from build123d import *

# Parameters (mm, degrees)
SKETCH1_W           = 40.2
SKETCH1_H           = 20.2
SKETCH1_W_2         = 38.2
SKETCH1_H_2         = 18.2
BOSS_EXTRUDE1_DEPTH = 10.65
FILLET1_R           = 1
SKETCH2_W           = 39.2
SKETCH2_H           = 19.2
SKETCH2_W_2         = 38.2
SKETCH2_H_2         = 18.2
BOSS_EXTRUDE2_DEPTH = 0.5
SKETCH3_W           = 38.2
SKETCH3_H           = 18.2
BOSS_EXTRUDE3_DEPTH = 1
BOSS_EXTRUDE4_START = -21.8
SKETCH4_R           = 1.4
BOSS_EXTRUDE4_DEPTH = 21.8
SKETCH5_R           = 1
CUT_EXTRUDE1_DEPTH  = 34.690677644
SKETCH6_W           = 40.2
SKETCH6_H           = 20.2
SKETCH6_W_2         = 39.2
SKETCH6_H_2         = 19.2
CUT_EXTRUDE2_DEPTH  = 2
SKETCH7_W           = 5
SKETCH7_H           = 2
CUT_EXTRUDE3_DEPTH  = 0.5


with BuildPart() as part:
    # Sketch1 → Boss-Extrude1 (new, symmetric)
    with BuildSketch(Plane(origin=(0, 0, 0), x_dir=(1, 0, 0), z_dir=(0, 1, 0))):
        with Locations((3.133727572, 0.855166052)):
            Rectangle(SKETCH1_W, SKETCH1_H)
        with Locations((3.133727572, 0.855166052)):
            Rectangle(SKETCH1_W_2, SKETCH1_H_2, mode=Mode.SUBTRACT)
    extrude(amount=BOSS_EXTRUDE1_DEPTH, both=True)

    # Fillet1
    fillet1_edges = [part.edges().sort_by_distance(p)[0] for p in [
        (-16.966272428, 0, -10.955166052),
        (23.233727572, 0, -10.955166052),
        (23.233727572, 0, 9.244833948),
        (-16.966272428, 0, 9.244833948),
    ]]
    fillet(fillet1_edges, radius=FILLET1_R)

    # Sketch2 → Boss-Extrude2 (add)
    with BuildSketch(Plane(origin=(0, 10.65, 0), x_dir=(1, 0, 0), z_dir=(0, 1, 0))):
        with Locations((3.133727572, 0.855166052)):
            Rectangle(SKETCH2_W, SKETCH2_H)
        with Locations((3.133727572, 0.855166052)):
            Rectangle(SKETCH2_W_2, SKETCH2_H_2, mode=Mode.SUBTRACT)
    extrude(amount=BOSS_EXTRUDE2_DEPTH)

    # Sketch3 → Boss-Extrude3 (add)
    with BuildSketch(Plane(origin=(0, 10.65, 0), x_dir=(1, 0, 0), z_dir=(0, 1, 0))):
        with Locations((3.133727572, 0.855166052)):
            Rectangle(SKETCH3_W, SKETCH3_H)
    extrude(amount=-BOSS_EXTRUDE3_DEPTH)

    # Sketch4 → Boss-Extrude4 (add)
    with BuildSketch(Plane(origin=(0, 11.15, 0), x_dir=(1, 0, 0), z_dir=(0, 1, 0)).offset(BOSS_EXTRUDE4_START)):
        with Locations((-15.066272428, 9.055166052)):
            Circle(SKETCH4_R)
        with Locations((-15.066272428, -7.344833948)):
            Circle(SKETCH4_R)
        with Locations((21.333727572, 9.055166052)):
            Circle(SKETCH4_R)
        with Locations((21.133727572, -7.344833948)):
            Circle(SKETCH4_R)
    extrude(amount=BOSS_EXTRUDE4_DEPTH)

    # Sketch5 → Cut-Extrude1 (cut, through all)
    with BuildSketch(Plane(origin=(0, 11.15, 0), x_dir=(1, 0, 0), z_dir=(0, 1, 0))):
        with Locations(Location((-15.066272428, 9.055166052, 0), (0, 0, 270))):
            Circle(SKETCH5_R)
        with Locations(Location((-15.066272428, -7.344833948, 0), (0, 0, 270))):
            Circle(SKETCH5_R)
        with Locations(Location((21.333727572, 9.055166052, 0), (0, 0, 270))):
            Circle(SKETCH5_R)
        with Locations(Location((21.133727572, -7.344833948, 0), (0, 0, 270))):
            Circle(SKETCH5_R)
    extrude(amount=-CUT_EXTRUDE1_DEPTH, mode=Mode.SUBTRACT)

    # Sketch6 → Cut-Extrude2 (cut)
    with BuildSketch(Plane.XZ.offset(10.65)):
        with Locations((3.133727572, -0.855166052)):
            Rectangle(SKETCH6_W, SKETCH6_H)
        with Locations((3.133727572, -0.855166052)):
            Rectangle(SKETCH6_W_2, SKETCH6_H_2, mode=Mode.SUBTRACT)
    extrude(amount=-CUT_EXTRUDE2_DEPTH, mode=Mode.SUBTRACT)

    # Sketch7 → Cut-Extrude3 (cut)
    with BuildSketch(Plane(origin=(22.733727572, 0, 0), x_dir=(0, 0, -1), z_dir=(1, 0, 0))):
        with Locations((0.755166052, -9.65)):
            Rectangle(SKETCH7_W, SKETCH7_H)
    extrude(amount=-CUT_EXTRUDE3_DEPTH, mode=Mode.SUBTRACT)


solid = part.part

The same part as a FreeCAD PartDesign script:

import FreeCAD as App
import Part
import Sketcher
Q = App.Units.Quantity


def edges_at(feature, points):
    """Names of the edges that pass closest to the given points."""
    edges = feature.Shape.Edges
    near = lambda p: min(range(len(edges)), key=lambda i: edges[i].distToShape(Part.Vertex(*p))[0])
    return sorted({f"Edge{near(p) + 1}" for p in points})

doc = App.newDocument("Part")
params = doc.addObject("Spreadsheet::Sheet", "Params")
for row, (alias, value) in enumerate([
    ("sketch1_width", "40.2 mm"),
    ("sketch1_width2", "38.2 mm"),
    ("sketch1_height", "20.2 mm"),
    ("sketch1_height2", "18.2 mm"),
    ("pad1_length", "21.3 mm"),
    ("fillet_radius", "1 mm"),
    ("sketch2_width", "39.2 mm"),
    ("sketch2_width2", "38.2 mm"),
    ("sketch2_height", "19.2 mm"),
    ("sketch2_height2", "18.2 mm"),
    ("pad2_length", "0.5 mm"),
    ("sketch3_width", "38.2 mm"),
    ("sketch3_height", "18.2 mm"),
    ("pad3_length", "1 mm"),
    ("sketch4_diameter", "2.8 mm"),
    ("pad4_length", "21.8 mm"),
    ("sketch5_diameter", "2 mm"),
    ("sketch6_width", "40.2 mm"),
    ("sketch6_width2", "39.2 mm"),
    ("sketch6_height", "20.2 mm"),
    ("sketch6_height2", "19.2 mm"),
    ("pocket2_length", "2 mm"),
    ("sketch7_width", "2 mm"),
    ("sketch7_height", "5 mm"),
    ("pocket3_length", "0.5 mm"),
], start=1):
    params.set(f"A{row}", alias)
    params.set(f"B{row}", "=" + value)
    params.setAlias(f"B{row}", alias)

body = doc.addObject("PartDesign::Body", "Body")

# Sketch on XZ plane
sketch1 = body.newObject("Sketcher::SketchObject", "Sketch")
sketch1.AttachmentSupport = (doc.getObject("XZ_Plane"), [""])
sketch1.MapMode = "FlatFace"
sketch1.addGeometry([
    Part.LineSegment(App.Vector(-17, -11, 0), App.Vector(-17, 9, 0)),  # 0
    Part.LineSegment(App.Vector(-17, 9, 0), App.Vector(23, 9, 0)),  # 1
    Part.LineSegment(App.Vector(23, 9, 0), App.Vector(23, -11, 0)),  # 2
    Part.LineSegment(App.Vector(23, -11, 0), App.Vector(-17, -11, 0)),  # 3
    Part.LineSegment(App.Vector(22, 8, 0), App.Vector(-16, 8, 0)),  # 4
    Part.LineSegment(App.Vector(-16, 8, 0), App.Vector(-16, -10, 0)),  # 5
    Part.LineSegment(App.Vector(-16, -10, 0), App.Vector(22, -10, 0)),  # 6
    Part.LineSegment(App.Vector(22, -10, 0), App.Vector(22, 8, 0)),  # 7
], False)
sketch1.addConstraint([
    Sketcher.Constraint("Coincident", 0, 2, 1, 1),
    Sketcher.Constraint("Coincident", 1, 2, 2, 1),
    Sketcher.Constraint("Coincident", 2, 2, 3, 1),
    Sketcher.Constraint("Coincident", 3, 2, 0, 1),
    Sketcher.Constraint("Coincident", 4, 2, 5, 1),
    Sketcher.Constraint("Coincident", 5, 2, 6, 1),
    Sketcher.Constraint("Coincident", 6, 2, 7, 1),
    Sketcher.Constraint("Coincident", 7, 2, 4, 1),
    Sketcher.Constraint("Vertical", 0),
    Sketcher.Constraint("Horizontal", 1),
    Sketcher.Constraint("Vertical", 2),
    Sketcher.Constraint("Horizontal", 3),
    Sketcher.Constraint("Horizontal", 4),
    Sketcher.Constraint("Vertical", 5),
    Sketcher.Constraint("Horizontal", 6),
    Sketcher.Constraint("Vertical", 7),
    Sketcher.Constraint("DistanceX", 1, 1, 1, 2, Q("40.2 mm")),
    Sketcher.Constraint("DistanceX", 4, 2, 4, 1, Q("38.2 mm")),
    Sketcher.Constraint("DistanceY", 0, 1, 0, 2, Q("20.2 mm")),
    Sketcher.Constraint("DistanceY", 5, 2, 5, 1, Q("18.2 mm")),
    Sketcher.Constraint("DistanceX", 0, 2, 4, 2, Q("1 mm")),
    Sketcher.Constraint("DistanceY", 4, 2, 0, 2, Q("1 mm")),
    Sketcher.Constraint("DistanceX", 0, 2, -1, 1, Q("16.966272 mm")),
    Sketcher.Constraint("DistanceY", -1, 1, 0, 2, Q("9.244834 mm")),
])
sketch1.setExpression("Constraints[16]", "Params.sketch1_width")
sketch1.setExpression("Constraints[17]", "Params.sketch1_width2")
sketch1.setExpression("Constraints[18]", "Params.sketch1_height")
sketch1.setExpression("Constraints[19]", "Params.sketch1_height2")
pad1 = body.newObject("PartDesign::Pad", "Pad")
pad1.Profile = sketch1
pad1.setExpression("Length", "Params.pad1_length")
pad1.Midplane = True
doc.recompute()

fillet = body.newObject("PartDesign::Fillet", "Fillet")
fillet.Base = (pad1, edges_at(pad1, [
    (-16.966, 0, -10.955),
    (23.234, 0, -10.955),
    (23.234, 0, 9.245),
    (-16.966, 0, 9.245),
]))
fillet.setExpression("Radius", "Params.fillet_radius")

# Sketch on XZ plane
sketch2 = body.newObject("Sketcher::SketchObject", "Sketch001")
sketch2.AttachmentSupport = (doc.getObject("XZ_Plane"), [""])
sketch2.MapMode = "FlatFace"
sketch2.AttachmentOffset = App.Placement(App.Vector(0, 0, -10.65), App.Rotation())
sketch2.addGeometry([
    Part.LineSegment(App.Vector(-16, -10, 0), App.Vector(-16, 9, 0)),  # 0
    Part.LineSegment(App.Vector(-16, 9, 0), App.Vector(23, 9, 0)),  # 1
    Part.LineSegment(App.Vector(23, 9, 0), App.Vector(23, -10, 0)),  # 2
    Part.LineSegment(App.Vector(23, -10, 0), App.Vector(-16, -10, 0)),  # 3
    Part.LineSegment(App.Vector(22, 8, 0), App.Vector(-16, 8, 0)),  # 4
    Part.LineSegment(App.Vector(-16, 8, 0), App.Vector(-16, -10, 0)),  # 5
    Part.LineSegment(App.Vector(-16, -10, 0), App.Vector(22, -10, 0)),  # 6
    Part.LineSegment(App.Vector(22, -10, 0), App.Vector(22, 8, 0)),  # 7
], False)
sketch2.addConstraint([
    Sketcher.Constraint("Coincident", 0, 2, 1, 1),
    Sketcher.Constraint("Coincident", 1, 2, 2, 1),
    Sketcher.Constraint("Coincident", 2, 2, 3, 1),
    Sketcher.Constraint("Coincident", 3, 2, 0, 1),
    Sketcher.Constraint("Coincident", 4, 2, 5, 1),
    Sketcher.Constraint("Coincident", 5, 2, 6, 1),
    Sketcher.Constraint("Coincident", 6, 2, 7, 1),
    Sketcher.Constraint("Coincident", 7, 2, 4, 1),
    Sketcher.Constraint("Vertical", 0),
    Sketcher.Constraint("Horizontal", 1),
    Sketcher.Constraint("Vertical", 2),
    Sketcher.Constraint("Horizontal", 3),
    Sketcher.Constraint("Horizontal", 4),
    Sketcher.Constraint("Vertical", 5),
    Sketcher.Constraint("Horizontal", 6),
    Sketcher.Constraint("Vertical", 7),
    Sketcher.Constraint("DistanceX", 1, 1, 1, 2, Q("39.2 mm")),
    Sketcher.Constraint("DistanceX", 4, 2, 4, 1, Q("38.2 mm")),
    Sketcher.Constraint("DistanceY", 0, 1, 0, 2, Q("19.2 mm")),
    Sketcher.Constraint("DistanceY", 5, 2, 5, 1, Q("18.2 mm")),
    Sketcher.Constraint("DistanceX", 0, 2, 4, 2, Q("0.5 mm")),
    Sketcher.Constraint("DistanceY", 4, 2, 0, 2, Q("0.5 mm")),
    Sketcher.Constraint("DistanceX", 0, 2, -1, 1, Q("16.466272 mm")),
    Sketcher.Constraint("DistanceY", -1, 1, 0, 2, Q("8.744834 mm")),
])
sketch2.setExpression("Constraints[16]", "Params.sketch2_width")
sketch2.setExpression("Constraints[17]", "Params.sketch2_width2")
sketch2.setExpression("Constraints[18]", "Params.sketch2_height")
sketch2.setExpression("Constraints[19]", "Params.sketch2_height2")
pad2 = body.newObject("PartDesign::Pad", "Pad001")
pad2.Profile = sketch2
pad2.setExpression("Length", "Params.pad2_length")
pad2.Reversed = True

# Sketch on XZ plane
sketch3 = body.newObject("Sketcher::SketchObject", "Sketch002")
sketch3.AttachmentSupport = (doc.getObject("XZ_Plane"), [""])
sketch3.MapMode = "FlatFace"
sketch3.AttachmentOffset = App.Placement(App.Vector(0, 0, -10.65), App.Rotation())
sketch3.addGeometry([
    Part.LineSegment(App.Vector(-16, -10, 0), App.Vector(-16, 8, 0)),
    Part.LineSegment(App.Vector(-16, 8, 0), App.Vector(22, 8, 0)),
    Part.LineSegment(App.Vector(22, 8, 0), App.Vector(22, -10, 0)),
    Part.LineSegment(App.Vector(22, -10, 0), App.Vector(-16, -10, 0)),
], False)
sketch3.addConstraint([
    Sketcher.Constraint("Coincident", 0, 2, 1, 1),
    Sketcher.Constraint("Coincident", 1, 2, 2, 1),
    Sketcher.Constraint("Coincident", 2, 2, 3, 1),
    Sketcher.Constraint("Coincident", 3, 2, 0, 1),
    Sketcher.Constraint("Vertical", 0),
    Sketcher.Constraint("Horizontal", 1),
    Sketcher.Constraint("Vertical", 2),
    Sketcher.Constraint("Horizontal", 3),
    Sketcher.Constraint("DistanceX", 1, 1, 1, 2, Q("38.2 mm")),
    Sketcher.Constraint("DistanceY", 0, 1, 0, 2, Q("18.2 mm")),
    Sketcher.Constraint("DistanceX", 0, 2, -1, 1, Q("15.966272 mm")),
    Sketcher.Constraint("DistanceY", -1, 1, 0, 2, Q("8.244834 mm")),
])
sketch3.setExpression("Constraints[8]", "Params.sketch3_width")
sketch3.setExpression("Constraints[9]", "Params.sketch3_height")
pad3 = body.newObject("PartDesign::Pad", "Pad002")
pad3.Profile = sketch3
pad3.setExpression("Length", "Params.pad3_length")

# Sketch on XZ plane
sketch4 = body.newObject("Sketcher::SketchObject", "Sketch003")
sketch4.AttachmentSupport = (doc.getObject("XZ_Plane"), [""])
sketch4.MapMode = "FlatFace"
sketch4.AttachmentOffset = App.Placement(App.Vector(0, 0, 10.65), App.Rotation())
sketch4.addGeometry([
    Part.Circle(App.Vector(-15.1, -9.1, 0), App.Vector(0, 0, 1), 1.4),
    Part.Circle(App.Vector(-15.1, 7.3, 0), App.Vector(0, 0, 1), 1.4),
    Part.Circle(App.Vector(21.3, -9.1, 0), App.Vector(0, 0, 1), 1.4),
    Part.Circle(App.Vector(21.1, 7.3, 0), App.Vector(0, 0, 1), 1.4),
], False)
sketch4.addConstraint([
    Sketcher.Constraint("Equal", 0, 1),
    Sketcher.Constraint("Equal", 1, 2),
    Sketcher.Constraint("Equal", 2, 3),
    Sketcher.Constraint("Horizontal", 0, 3, 2, 3),
    Sketcher.Constraint("Horizontal", 1, 3, 3, 3),
    Sketcher.Constraint("Vertical", 0, 3, 1, 3),
    Sketcher.Constraint("Diameter", 0, Q("2.8 mm")),
    Sketcher.Constraint("DistanceY", 0, 3, 1, 3, Q("16.4 mm")),
    Sketcher.Constraint("DistanceX", 0, 3, 2, 3, Q("36.4 mm")),
    Sketcher.Constraint("DistanceX", 3, 3, 2, 3, Q("0.2 mm")),
    Sketcher.Constraint("DistanceX", 0, 3, -1, 1, Q("15.066272 mm")),
    Sketcher.Constraint("DistanceY", 0, 3, -1, 1, Q("9.055166 mm")),
])
sketch4.setExpression("Constraints[6]", "Params.sketch4_diameter")
pad4 = body.newObject("PartDesign::Pad", "Pad003")
pad4.Profile = sketch4
pad4.setExpression("Length", "Params.pad4_length")
pad4.Reversed = True

# Sketch on XZ plane
sketch5 = body.newObject("Sketcher::SketchObject", "Sketch004")
sketch5.AttachmentSupport = (doc.getObject("XZ_Plane"), [""])
sketch5.MapMode = "FlatFace"
sketch5.AttachmentOffset = App.Placement(App.Vector(0, 0, -11.15), App.Rotation())
sketch5.addGeometry([
    Part.Circle(App.Vector(-15.1, -9.1, 0), App.Vector(0, 0, 1), 1),
    Part.Circle(App.Vector(-15.1, 7.3, 0), App.Vector(0, 0, 1), 1),
    Part.Circle(App.Vector(21.3, -9.1, 0), App.Vector(0, 0, 1), 1),
    Part.Circle(App.Vector(21.1, 7.3, 0), App.Vector(0, 0, 1), 1),
], False)
sketch5.addConstraint([
    Sketcher.Constraint("Equal", 0, 1),
    Sketcher.Constraint("Equal", 1, 2),
    Sketcher.Constraint("Equal", 2, 3),
    Sketcher.Constraint("Horizontal", 0, 3, 2, 3),
    Sketcher.Constraint("Horizontal", 1, 3, 3, 3),
    Sketcher.Constraint("Vertical", 0, 3, 1, 3),
    Sketcher.Constraint("Diameter", 0, Q("2 mm")),
    Sketcher.Constraint("DistanceY", 0, 3, 1, 3, Q("16.4 mm")),
    Sketcher.Constraint("DistanceX", 0, 3, 2, 3, Q("36.4 mm")),
    Sketcher.Constraint("DistanceX", 3, 3, 2, 3, Q("0.2 mm")),
    Sketcher.Constraint("DistanceX", 0, 3, -1, 1, Q("15.066272 mm")),
    Sketcher.Constraint("DistanceY", 0, 3, -1, 1, Q("9.055166 mm")),
])
sketch5.setExpression("Constraints[6]", "Params.sketch5_diameter")
pocket1 = body.newObject("PartDesign::Pocket", "Pocket")
pocket1.Profile = sketch5
pocket1.Type = "ThroughAll"
pocket1.Reversed = True

# Sketch on XZ plane
sketch6 = body.newObject("Sketcher::SketchObject", "Sketch005")
sketch6.AttachmentSupport = (doc.getObject("XZ_Plane"), [""])
sketch6.MapMode = "FlatFace"
sketch6.AttachmentOffset = App.Placement(App.Vector(0, 0, 10.65), App.Rotation())
sketch6.addGeometry([
    Part.LineSegment(App.Vector(-17, 9, 0), App.Vector(-17, -11, 0)),  # 0
    Part.LineSegment(App.Vector(-17, -11, 0), App.Vector(23, -11, 0)),  # 1
    Part.LineSegment(App.Vector(23, -11, 0), App.Vector(23, 9, 0)),  # 2
    Part.LineSegment(App.Vector(23, 9, 0), App.Vector(-17, 9, 0)),  # 3
    Part.LineSegment(App.Vector(23, -10, 0), App.Vector(-16, -10, 0)),  # 4
    Part.LineSegment(App.Vector(-16, -10, 0), App.Vector(-16, 9, 0)),  # 5
    Part.LineSegment(App.Vector(-16, 9, 0), App.Vector(23, 9, 0)),  # 6
    Part.LineSegment(App.Vector(23, 9, 0), App.Vector(23, -10, 0)),  # 7
], False)
sketch6.addConstraint([
    Sketcher.Constraint("Coincident", 0, 2, 1, 1),
    Sketcher.Constraint("Coincident", 1, 2, 2, 1),
    Sketcher.Constraint("Coincident", 2, 2, 3, 1),
    Sketcher.Constraint("Coincident", 3, 2, 0, 1),
    Sketcher.Constraint("Coincident", 4, 2, 5, 1),
    Sketcher.Constraint("Coincident", 5, 2, 6, 1),
    Sketcher.Constraint("Coincident", 6, 2, 7, 1),
    Sketcher.Constraint("Coincident", 7, 2, 4, 1),
    Sketcher.Constraint("Vertical", 0),
    Sketcher.Constraint("Horizontal", 1),
    Sketcher.Constraint("Vertical", 2),
    Sketcher.Constraint("Horizontal", 3),
    Sketcher.Constraint("Horizontal", 4),
    Sketcher.Constraint("Vertical", 5),
    Sketcher.Constraint("Horizontal", 6),
    Sketcher.Constraint("Vertical", 7),
    Sketcher.Constraint("DistanceX", 1, 1, 1, 2, Q("40.2 mm")),
    Sketcher.Constraint("DistanceX", 4, 2, 4, 1, Q("39.2 mm")),
    Sketcher.Constraint("DistanceY", 0, 2, 0, 1, Q("20.2 mm")),
    Sketcher.Constraint("DistanceY", 5, 1, 5, 2, Q("19.2 mm")),
    Sketcher.Constraint("DistanceX", 0, 2, 4, 2, Q("0.5 mm")),
    Sketcher.Constraint("DistanceY", 0, 2, 4, 2, Q("0.5 mm")),
    Sketcher.Constraint("DistanceX", 0, 2, -1, 1, Q("16.966272 mm")),
    Sketcher.Constraint("DistanceY", 0, 2, -1, 1, Q("10.955166 mm")),
])
sketch6.setExpression("Constraints[16]", "Params.sketch6_width")
sketch6.setExpression("Constraints[17]", "Params.sketch6_width2")
sketch6.setExpression("Constraints[18]", "Params.sketch6_height")
sketch6.setExpression("Constraints[19]", "Params.sketch6_height2")
pocket2 = body.newObject("PartDesign::Pocket", "Pocket001")
pocket2.Profile = sketch6
pocket2.setExpression("Length", "Params.pocket2_length")

# Sketch on YZ plane
sketch7 = body.newObject("Sketcher::SketchObject", "Sketch006")
sketch7.AttachmentSupport = (doc.getObject("YZ_Plane"), [""])
sketch7.MapMode = "FlatFace"
sketch7.AttachmentOffset = App.Placement(App.Vector(0, 0, 22.733728), App.Rotation())
sketch7.addGeometry([
    Part.LineSegment(App.Vector(-8.7, 1.7, 0), App.Vector(-10.7, 1.7, 0)),
    Part.LineSegment(App.Vector(-10.7, 1.7, 0), App.Vector(-10.7, -3.3, 0)),
    Part.LineSegment(App.Vector(-10.7, -3.3, 0), App.Vector(-8.7, -3.3, 0)),
    Part.LineSegment(App.Vector(-8.7, -3.3, 0), App.Vector(-8.7, 1.7, 0)),
], False)
sketch7.addConstraint([
    Sketcher.Constraint("Coincident", 0, 2, 1, 1),
    Sketcher.Constraint("Coincident", 1, 2, 2, 1),
    Sketcher.Constraint("Coincident", 2, 2, 3, 1),
    Sketcher.Constraint("Coincident", 3, 2, 0, 1),
    Sketcher.Constraint("Horizontal", 0),
    Sketcher.Constraint("Vertical", 1),
    Sketcher.Constraint("Horizontal", 2),
    Sketcher.Constraint("Vertical", 3),
    Sketcher.Constraint("DistanceX", 0, 2, 0, 1, Q("2 mm")),
    Sketcher.Constraint("DistanceY", 1, 2, 1, 1, Q("5 mm")),
    Sketcher.Constraint("DistanceX", 0, 2, -1, 1, Q("10.65 mm")),
    Sketcher.Constraint("DistanceY", -1, 1, 0, 2, Q("1.744834 mm")),
])
sketch7.setExpression("Constraints[8]", "Params.sketch7_width")
sketch7.setExpression("Constraints[9]", "Params.sketch7_height")
pocket3 = body.newObject("PartDesign::Pocket", "Pocket002")
pocket3.Profile = sketch7
pocket3.setExpression("Length", "Params.pocket3_length")

doc.recompute()
